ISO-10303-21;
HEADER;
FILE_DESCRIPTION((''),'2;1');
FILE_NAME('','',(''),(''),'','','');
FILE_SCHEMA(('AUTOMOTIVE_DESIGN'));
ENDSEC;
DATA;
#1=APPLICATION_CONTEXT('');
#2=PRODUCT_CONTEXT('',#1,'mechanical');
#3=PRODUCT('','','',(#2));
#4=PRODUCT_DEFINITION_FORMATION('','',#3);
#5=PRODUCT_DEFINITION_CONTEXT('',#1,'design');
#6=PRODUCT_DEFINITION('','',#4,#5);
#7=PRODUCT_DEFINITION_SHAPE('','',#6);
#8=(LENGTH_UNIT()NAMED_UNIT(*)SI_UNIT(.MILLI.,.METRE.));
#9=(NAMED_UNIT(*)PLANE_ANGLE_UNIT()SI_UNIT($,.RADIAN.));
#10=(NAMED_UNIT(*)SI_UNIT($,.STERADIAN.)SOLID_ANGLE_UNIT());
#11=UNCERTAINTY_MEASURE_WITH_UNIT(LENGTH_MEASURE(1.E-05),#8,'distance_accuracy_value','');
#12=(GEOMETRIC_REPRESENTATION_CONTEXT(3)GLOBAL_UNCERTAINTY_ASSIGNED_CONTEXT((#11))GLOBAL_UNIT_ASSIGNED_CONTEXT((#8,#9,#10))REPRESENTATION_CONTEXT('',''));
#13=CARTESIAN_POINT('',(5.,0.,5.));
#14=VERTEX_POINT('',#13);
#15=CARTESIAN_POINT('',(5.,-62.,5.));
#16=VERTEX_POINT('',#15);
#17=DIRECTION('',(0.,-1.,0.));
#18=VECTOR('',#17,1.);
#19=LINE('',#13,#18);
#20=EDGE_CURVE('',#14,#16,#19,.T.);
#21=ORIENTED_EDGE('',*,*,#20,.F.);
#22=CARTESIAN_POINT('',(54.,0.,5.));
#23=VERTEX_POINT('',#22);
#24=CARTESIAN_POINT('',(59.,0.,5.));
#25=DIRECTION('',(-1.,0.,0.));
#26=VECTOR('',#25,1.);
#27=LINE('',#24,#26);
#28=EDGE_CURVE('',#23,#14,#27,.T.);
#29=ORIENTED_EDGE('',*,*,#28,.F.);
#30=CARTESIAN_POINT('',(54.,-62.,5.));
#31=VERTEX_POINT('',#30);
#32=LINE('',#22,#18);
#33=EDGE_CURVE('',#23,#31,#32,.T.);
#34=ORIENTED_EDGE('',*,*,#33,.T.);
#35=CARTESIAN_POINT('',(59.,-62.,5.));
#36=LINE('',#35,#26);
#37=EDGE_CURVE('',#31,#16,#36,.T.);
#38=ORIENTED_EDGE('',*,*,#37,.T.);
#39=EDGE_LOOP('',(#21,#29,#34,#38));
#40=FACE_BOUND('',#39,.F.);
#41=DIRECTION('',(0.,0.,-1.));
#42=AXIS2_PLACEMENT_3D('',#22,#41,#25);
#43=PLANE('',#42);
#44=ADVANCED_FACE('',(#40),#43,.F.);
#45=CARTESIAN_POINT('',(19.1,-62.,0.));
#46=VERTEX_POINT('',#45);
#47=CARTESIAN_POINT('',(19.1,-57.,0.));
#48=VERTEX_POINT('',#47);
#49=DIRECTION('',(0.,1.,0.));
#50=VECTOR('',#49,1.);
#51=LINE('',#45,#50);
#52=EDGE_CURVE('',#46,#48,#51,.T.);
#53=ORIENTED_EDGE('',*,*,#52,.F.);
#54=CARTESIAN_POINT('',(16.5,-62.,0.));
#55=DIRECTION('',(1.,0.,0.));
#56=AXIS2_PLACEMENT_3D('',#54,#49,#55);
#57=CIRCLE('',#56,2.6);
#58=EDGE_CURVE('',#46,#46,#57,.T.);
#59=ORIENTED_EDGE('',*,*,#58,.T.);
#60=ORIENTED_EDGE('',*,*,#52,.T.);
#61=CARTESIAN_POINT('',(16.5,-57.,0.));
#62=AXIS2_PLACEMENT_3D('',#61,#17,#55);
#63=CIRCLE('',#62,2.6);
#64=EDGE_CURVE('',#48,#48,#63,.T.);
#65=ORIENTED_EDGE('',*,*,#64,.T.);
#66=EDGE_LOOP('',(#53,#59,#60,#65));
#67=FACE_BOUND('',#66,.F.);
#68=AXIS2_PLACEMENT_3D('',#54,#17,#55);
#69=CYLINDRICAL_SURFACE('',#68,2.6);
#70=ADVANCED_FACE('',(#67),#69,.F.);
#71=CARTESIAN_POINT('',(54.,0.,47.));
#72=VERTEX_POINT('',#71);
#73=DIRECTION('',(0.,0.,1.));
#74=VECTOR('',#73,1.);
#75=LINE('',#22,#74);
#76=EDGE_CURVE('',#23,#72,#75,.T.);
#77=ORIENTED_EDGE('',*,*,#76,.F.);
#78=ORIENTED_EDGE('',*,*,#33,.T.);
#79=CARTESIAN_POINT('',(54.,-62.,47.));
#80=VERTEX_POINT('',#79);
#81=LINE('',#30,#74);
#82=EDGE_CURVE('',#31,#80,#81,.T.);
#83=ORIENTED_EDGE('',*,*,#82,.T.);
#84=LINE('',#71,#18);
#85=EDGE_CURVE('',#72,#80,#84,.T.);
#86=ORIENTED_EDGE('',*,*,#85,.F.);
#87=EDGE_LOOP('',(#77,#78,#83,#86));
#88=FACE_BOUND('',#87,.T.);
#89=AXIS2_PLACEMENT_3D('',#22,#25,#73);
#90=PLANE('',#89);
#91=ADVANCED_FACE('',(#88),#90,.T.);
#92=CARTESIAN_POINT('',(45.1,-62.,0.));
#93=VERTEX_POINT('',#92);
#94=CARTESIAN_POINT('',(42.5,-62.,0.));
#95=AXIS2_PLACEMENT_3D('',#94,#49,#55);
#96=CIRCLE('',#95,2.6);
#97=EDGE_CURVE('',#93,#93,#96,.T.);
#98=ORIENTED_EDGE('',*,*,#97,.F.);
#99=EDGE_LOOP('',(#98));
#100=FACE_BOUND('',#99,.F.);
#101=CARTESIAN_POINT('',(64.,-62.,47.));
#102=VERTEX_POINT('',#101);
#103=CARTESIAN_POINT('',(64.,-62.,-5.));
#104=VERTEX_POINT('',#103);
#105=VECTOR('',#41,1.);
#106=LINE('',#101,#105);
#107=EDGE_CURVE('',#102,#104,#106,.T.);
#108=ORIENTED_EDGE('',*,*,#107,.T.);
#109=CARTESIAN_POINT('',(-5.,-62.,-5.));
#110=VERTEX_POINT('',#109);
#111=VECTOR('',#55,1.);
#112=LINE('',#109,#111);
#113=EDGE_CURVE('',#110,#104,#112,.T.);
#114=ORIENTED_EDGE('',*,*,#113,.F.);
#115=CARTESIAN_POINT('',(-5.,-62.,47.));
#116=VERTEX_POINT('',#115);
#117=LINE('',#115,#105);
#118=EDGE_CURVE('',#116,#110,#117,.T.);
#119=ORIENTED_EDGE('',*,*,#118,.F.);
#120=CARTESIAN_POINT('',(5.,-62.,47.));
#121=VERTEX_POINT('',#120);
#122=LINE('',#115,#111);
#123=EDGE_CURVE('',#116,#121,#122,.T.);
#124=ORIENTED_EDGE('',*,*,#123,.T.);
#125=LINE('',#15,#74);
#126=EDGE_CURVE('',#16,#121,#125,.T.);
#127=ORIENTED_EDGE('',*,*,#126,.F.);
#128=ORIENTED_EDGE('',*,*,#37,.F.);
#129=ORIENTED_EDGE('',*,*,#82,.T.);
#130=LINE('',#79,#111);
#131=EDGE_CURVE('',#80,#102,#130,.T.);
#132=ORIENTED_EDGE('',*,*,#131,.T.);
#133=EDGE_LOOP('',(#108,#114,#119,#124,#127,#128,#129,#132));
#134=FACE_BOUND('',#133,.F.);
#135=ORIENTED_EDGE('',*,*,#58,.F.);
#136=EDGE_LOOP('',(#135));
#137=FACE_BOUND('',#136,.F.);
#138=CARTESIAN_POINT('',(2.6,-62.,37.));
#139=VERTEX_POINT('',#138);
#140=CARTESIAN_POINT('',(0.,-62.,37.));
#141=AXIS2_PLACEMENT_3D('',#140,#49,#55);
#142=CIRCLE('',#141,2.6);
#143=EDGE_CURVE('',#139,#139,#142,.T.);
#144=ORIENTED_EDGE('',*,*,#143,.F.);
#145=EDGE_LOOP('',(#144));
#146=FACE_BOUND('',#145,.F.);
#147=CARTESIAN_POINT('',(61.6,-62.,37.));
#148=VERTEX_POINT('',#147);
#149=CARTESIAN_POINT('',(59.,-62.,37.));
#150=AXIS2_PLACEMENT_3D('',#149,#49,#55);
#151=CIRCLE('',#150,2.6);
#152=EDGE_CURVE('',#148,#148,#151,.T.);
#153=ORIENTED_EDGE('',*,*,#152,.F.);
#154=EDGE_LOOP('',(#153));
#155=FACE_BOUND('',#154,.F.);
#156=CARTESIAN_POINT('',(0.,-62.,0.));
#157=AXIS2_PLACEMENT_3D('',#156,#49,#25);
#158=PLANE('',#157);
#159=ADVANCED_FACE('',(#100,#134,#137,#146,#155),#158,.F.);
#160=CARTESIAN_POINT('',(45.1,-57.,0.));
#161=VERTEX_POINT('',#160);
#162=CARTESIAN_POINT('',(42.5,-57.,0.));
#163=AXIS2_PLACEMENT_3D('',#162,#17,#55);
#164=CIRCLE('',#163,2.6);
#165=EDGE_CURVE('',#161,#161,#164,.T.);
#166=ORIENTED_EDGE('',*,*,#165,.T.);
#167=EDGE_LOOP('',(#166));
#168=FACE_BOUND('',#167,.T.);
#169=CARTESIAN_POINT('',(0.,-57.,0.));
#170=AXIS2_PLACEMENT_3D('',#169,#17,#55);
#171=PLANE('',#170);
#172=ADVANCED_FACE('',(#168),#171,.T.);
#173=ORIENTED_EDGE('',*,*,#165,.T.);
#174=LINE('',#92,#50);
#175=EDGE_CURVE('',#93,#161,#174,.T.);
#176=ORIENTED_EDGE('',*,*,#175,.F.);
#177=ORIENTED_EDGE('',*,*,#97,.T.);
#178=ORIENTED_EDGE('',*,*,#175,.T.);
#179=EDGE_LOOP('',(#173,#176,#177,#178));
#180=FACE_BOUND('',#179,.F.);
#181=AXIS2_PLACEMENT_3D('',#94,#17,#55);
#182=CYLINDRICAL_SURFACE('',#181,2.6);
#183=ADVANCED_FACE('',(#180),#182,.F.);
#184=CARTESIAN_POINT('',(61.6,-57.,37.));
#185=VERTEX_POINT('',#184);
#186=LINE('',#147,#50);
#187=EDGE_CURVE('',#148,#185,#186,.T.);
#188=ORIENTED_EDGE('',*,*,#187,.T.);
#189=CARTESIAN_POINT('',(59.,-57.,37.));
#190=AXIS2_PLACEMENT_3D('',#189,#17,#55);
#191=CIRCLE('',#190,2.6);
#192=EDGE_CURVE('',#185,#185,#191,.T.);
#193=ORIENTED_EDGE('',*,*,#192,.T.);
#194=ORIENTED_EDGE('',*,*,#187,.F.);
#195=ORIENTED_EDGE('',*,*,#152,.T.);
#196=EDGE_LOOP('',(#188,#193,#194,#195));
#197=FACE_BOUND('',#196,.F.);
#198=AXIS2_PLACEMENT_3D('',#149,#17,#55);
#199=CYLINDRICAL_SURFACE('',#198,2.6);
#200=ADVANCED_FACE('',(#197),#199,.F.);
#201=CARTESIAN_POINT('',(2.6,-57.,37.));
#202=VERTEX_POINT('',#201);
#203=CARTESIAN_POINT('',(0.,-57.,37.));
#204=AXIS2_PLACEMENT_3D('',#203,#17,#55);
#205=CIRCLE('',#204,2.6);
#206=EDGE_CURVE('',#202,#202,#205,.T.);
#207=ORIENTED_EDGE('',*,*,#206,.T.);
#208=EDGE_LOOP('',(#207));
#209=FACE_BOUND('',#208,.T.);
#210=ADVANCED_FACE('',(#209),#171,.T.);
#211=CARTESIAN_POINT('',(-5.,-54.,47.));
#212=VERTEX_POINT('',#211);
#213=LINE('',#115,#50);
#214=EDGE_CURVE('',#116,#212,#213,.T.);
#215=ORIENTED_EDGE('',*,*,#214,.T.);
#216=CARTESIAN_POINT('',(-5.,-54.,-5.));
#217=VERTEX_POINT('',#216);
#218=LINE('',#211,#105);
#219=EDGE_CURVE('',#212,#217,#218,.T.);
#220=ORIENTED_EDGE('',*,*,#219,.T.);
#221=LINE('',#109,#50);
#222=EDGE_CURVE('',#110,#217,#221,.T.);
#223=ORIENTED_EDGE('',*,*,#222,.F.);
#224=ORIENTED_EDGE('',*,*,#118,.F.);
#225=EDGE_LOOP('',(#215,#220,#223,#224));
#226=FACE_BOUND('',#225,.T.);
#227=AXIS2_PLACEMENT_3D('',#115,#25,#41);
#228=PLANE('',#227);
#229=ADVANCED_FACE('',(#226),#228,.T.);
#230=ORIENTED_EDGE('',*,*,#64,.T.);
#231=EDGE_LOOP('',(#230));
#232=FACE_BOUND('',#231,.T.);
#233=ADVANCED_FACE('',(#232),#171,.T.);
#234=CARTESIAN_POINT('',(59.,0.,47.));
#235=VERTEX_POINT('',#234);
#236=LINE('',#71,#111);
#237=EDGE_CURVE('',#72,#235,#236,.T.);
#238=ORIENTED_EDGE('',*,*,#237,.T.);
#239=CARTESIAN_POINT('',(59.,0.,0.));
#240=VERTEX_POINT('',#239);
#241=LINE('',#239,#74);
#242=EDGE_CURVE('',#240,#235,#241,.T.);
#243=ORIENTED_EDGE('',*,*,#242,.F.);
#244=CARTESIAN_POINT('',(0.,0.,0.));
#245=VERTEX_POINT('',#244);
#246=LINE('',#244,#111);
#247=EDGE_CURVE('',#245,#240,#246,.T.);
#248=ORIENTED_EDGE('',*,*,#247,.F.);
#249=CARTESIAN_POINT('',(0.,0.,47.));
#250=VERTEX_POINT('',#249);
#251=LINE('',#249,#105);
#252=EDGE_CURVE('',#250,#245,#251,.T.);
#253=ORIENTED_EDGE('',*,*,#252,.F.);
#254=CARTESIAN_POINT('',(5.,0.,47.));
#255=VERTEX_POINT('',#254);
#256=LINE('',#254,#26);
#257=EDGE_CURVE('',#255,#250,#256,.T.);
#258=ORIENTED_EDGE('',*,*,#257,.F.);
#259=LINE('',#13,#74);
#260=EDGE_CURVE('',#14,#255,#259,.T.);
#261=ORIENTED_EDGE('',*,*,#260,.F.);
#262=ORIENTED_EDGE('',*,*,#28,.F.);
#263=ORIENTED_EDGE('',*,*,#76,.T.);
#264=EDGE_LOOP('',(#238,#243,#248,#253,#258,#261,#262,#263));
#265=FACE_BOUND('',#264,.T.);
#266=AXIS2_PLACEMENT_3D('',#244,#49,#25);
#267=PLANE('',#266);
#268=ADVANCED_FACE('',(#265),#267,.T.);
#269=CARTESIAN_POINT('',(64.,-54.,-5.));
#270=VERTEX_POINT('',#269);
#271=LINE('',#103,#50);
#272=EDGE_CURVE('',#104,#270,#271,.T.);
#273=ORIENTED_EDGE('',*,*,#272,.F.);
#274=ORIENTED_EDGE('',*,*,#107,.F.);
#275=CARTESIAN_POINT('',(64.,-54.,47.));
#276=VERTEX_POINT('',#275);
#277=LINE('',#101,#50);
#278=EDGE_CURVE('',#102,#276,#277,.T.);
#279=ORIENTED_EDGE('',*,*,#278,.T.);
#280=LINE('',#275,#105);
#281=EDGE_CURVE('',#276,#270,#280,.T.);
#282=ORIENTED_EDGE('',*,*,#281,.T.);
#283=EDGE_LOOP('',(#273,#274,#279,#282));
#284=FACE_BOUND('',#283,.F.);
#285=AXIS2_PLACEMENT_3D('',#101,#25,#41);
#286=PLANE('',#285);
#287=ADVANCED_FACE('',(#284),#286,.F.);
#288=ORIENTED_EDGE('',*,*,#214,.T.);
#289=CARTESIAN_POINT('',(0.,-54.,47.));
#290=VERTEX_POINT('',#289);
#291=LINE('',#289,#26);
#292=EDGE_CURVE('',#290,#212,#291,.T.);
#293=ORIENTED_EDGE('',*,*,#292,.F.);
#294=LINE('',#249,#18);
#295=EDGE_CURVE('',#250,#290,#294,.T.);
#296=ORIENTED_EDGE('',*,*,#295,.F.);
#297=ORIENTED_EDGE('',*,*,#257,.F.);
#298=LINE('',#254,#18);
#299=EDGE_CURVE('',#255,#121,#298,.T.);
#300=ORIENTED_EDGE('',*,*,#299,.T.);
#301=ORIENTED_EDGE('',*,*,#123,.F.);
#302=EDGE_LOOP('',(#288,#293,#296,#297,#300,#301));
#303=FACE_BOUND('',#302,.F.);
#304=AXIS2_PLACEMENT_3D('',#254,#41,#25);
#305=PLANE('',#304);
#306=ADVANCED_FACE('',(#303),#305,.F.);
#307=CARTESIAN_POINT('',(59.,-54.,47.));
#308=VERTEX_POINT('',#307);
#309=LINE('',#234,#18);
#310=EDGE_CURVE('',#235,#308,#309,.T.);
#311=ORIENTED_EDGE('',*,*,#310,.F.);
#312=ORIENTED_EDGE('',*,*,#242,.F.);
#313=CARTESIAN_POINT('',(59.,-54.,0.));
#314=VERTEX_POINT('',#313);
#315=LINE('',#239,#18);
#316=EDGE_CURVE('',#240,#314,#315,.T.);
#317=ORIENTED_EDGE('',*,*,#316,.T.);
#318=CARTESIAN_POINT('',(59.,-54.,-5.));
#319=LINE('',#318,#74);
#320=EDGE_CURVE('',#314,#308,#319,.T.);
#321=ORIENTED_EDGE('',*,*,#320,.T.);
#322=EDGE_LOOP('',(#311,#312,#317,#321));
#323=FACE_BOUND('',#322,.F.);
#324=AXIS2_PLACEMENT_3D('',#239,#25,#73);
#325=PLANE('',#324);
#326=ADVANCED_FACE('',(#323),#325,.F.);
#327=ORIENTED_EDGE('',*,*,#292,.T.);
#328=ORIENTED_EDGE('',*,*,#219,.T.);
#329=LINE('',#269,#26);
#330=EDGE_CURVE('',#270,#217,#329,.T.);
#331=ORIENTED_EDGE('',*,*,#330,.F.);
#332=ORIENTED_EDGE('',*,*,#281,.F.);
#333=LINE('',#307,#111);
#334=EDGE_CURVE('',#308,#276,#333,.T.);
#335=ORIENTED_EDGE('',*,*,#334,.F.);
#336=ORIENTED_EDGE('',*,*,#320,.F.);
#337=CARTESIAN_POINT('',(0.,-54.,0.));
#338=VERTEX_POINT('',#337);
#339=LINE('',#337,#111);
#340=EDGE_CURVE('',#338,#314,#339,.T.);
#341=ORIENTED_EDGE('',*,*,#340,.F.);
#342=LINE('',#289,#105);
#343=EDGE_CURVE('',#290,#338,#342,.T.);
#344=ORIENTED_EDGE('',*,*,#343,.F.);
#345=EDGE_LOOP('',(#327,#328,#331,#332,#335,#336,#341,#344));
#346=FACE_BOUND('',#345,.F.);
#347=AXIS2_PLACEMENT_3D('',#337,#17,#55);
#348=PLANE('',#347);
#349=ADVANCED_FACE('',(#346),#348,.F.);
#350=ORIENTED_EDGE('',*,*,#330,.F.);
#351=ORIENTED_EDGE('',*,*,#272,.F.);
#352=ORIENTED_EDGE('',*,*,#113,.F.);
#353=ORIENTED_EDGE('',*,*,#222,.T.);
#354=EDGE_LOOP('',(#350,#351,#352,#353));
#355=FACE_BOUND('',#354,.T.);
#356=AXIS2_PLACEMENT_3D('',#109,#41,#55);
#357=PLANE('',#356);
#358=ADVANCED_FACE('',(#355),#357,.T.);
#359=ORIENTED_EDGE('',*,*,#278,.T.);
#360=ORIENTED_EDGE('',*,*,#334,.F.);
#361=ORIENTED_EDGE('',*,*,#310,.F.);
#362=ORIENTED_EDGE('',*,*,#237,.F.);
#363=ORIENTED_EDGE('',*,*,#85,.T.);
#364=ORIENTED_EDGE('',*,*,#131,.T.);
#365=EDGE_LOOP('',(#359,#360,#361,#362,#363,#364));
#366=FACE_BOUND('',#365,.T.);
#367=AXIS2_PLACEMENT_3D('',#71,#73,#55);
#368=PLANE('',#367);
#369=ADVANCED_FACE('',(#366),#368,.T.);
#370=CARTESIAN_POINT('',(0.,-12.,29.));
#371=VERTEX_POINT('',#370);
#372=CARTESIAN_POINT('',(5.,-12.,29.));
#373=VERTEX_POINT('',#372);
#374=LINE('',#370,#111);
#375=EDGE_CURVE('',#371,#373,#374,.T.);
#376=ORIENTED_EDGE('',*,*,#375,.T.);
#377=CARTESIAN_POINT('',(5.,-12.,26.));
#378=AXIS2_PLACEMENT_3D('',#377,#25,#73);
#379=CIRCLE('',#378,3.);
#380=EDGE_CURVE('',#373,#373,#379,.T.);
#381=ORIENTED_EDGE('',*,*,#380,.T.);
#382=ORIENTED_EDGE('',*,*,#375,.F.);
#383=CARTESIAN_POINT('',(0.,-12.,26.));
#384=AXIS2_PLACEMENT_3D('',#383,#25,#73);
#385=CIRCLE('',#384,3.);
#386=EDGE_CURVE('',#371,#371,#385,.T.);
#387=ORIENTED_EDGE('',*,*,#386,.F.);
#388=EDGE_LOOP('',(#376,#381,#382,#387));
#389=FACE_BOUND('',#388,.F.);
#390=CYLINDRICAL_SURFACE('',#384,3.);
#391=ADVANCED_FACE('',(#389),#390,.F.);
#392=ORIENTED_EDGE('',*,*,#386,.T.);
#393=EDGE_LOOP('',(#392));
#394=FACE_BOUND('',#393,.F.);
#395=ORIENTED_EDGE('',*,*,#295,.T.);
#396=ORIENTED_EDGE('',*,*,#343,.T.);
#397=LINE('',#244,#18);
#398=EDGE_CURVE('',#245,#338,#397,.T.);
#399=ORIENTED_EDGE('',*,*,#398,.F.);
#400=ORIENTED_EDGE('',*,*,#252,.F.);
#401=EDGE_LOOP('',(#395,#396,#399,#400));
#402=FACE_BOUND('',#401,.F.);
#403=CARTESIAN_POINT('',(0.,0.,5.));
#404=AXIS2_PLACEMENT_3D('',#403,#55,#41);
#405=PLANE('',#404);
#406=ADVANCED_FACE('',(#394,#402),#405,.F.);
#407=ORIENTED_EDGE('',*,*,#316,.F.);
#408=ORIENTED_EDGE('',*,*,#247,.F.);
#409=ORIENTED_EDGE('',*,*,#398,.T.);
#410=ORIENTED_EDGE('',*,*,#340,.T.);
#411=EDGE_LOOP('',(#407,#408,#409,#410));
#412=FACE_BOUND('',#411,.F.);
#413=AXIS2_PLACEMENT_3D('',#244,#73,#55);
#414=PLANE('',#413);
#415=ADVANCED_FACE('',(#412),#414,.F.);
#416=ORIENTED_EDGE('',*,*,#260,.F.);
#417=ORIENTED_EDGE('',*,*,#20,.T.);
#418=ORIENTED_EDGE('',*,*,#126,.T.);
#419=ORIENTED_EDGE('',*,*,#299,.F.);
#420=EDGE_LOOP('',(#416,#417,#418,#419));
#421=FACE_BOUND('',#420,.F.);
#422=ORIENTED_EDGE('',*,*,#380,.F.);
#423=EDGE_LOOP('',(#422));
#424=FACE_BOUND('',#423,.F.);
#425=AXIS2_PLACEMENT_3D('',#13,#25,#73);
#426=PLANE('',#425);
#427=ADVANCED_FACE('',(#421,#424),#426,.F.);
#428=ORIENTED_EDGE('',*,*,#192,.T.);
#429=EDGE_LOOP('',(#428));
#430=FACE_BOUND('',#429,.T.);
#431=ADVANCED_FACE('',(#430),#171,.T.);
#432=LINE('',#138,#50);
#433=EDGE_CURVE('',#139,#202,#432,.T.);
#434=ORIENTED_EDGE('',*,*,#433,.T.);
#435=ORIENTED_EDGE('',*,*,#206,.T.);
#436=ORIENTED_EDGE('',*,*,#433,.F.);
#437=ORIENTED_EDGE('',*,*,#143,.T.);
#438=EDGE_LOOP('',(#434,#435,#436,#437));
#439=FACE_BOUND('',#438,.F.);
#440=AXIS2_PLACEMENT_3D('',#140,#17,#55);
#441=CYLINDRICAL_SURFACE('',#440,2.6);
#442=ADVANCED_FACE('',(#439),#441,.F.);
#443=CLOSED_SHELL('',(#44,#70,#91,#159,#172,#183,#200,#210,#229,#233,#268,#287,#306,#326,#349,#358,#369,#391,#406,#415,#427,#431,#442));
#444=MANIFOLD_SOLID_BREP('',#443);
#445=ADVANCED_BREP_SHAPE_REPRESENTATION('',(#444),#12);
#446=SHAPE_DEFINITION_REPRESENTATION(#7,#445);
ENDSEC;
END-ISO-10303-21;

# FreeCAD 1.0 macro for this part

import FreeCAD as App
import Part
import Sketcher

V = App.Vector
Q = App.Units.Quantity


def add_polygon(sketch, points):
    """Adds a closed chain of lines whose ends are joined by coincident constraints."""
    first, n = sketch.GeometryCount, len(points)
    for a, b in zip(points, points[1:] + points[:1]):
        sketch.addGeometry(Part.LineSegment(App.Vector(*a, 0), App.Vector(*b, 0)), False)
    for i in range(n):
        sketch.addConstraint(Sketcher.Constraint("Coincident", first + i, 2, first + (i + 1) % n, 1))

doc = App.newDocument("Part")
body = doc.addObject("PartDesign::Body", "Body")

sketch1 = body.newObject("Sketcher::SketchObject", "Sketch")
sketch1.AttachmentSupport = (doc.getObject("XZ_Plane"), [""])
sketch1.MapMode = "FlatFace"
add_polygon(sketch1, [(59, 0), (0, 0), (0, 47), (5, 47), (5, 5), (54, 5), (54, 47), (59, 47)])
sketch1.addConstraint(Sketcher.Constraint("Horizontal", 0))
sketch1.addConstraint(Sketcher.Constraint("Vertical", 1))
sketch1.addConstraint(Sketcher.Constraint("Horizontal", 2))
sketch1.addConstraint(Sketcher.Constraint("Vertical", 3))
sketch1.addConstraint(Sketcher.Constraint("Horizontal", 4))
sketch1.addConstraint(Sketcher.Constraint("Vertical", 5))
sketch1.addConstraint(Sketcher.Constraint("Horizontal", 6))
sketch1.addConstraint(Sketcher.Constraint("Vertical", 7))
sketch1.addConstraint(Sketcher.Constraint("Coincident", 0, 2, -1, 1))
sketch1.addConstraint(Sketcher.Constraint("Horizontal", 2, 2, 5, 2))
sketch1.addConstraint(Sketcher.Constraint("Equal", 2, 6))
sketch1.addConstraint(Sketcher.Constraint("DistanceX", 0, 2, 0, 1, Q("59 mm")))
sketch1.addConstraint(Sketcher.Constraint("DistanceX", 2, 1, 2, 2, Q("5 mm")))
sketch1.addConstraint(Sketcher.Constraint("DistanceY", 3, 2, 3, 1, Q("42 mm")))
sketch1.addConstraint(Sketcher.Constraint("DistanceY", -1, 1, 3, 2, Q("5 mm")))
pad1 = body.newObject("PartDesign::Pad", "Pad")
pad1.Profile = sketch1
pad1.Length = 62

sketch2 = body.newObject("Sketcher::SketchObject", "Sketch001")
sketch2.AttachmentSupport = (doc.getObject("XZ_Plane"), [""])
sketch2.MapMode = "FlatFace"
sketch2.AttachmentOffset = App.Placement(V(0, 0, 62), App.Rotation())
add_polygon(sketch2, [(0, 0), (0, 47), (-5, 47), (-5, -5), (64, -5), (64, 47), (59, 47), (59, 0)])
sketch2.addConstraint(Sketcher.Constraint("Vertical", 0))
sketch2.addConstraint(Sketcher.Constraint("Horizontal", 1))
sketch2.addConstraint(Sketcher.Constraint("Vertical", 2))
sketch2.addConstraint(Sketcher.Constraint("Horizontal", 3))
sketch2.addConstraint(Sketcher.Constraint("Vertical", 4))
sketch2.addConstraint(Sketcher.Constraint("Horizontal", 5))
sketch2.addConstraint(Sketcher.Constraint("Vertical", 6))
sketch2.addConstraint(Sketcher.Constraint("Horizontal", 7))
sketch2.addConstraint(Sketcher.Constraint("Coincident", 7, 2, -1, 1))
sketch2.addConstraint(Sketcher.Constraint("Horizontal", 1, 2, 4, 2))
sketch2.addConstraint(Sketcher.Constraint("Equal", 1, 5))
sketch2.addConstraint(Sketcher.Constraint("DistanceX", 1, 2, 1, 1, Q("5 mm")))
sketch2.addConstraint(Sketcher.Constraint("DistanceY", 2, 2, 2, 1, Q("52 mm")))
sketch2.addConstraint(Sketcher.Constraint("DistanceY", 2, 2, -1, 1, Q("5 mm")))
sketch2.addConstraint(Sketcher.Constraint("DistanceX", 3, 1, 3, 2, Q("69 mm")))
pad2 = body.newObject("PartDesign::Pad", "Pad001")
pad2.Profile = sketch2
pad2.Length = 8
pad2.Reversed = True

sketch3 = body.newObject("Sketcher::SketchObject", "Sketch002")
sketch3.AttachmentSupport = (doc.getObject("XZ_Plane"), [""])
sketch3.MapMode = "FlatFace"
sketch3.AttachmentOffset = App.Placement(V(0, 0, 62), App.Rotation())
sketch3.addGeometry(Part.Circle(V(0, 37, 0), V(0, 0, 1), 2.6), False)
sketch3.addGeometry(Part.Circle(V(59, 37, 0), V(0, 0, 1), 2.6), False)
sketch3.addGeometry(Part.Circle(V(42.5, 0, 0), V(0, 0, 1), 2.6), False)
sketch3.addGeometry(Part.Circle(V(16.5, 0, 0), V(0, 0, 1), 2.6), False)
sketch3.addConstraint(Sketcher.Constraint("Equal", 0, 1))
sketch3.addConstraint(Sketcher.Constraint("Equal", 1, 2))
sketch3.addConstraint(Sketcher.Constraint("Equal", 2, 3))
sketch3.addConstraint(Sketcher.Constraint("PointOnObject", 0, 3, -2))
sketch3.addConstraint(Sketcher.Constraint("PointOnObject", 2, 3, -1))
sketch3.addConstraint(Sketcher.Constraint("PointOnObject", 3, 3, -1))
sketch3.addConstraint(Sketcher.Constraint("Horizontal", 0, 3, 1, 3))
sketch3.addConstraint(Sketcher.Constraint("Diameter", 0, Q("5.2 mm")))
sketch3.addConstraint(Sketcher.Constraint("DistanceY", -1, 1, 0, 3, Q("37 mm")))
sketch3.addConstraint(Sketcher.Constraint("DistanceX", -1, 1, 1, 3, Q("59 mm")))
sketch3.addConstraint(Sketcher.Constraint("DistanceX", 3, 3, 2, 3, Q("26 mm")))
sketch3.addConstraint(Sketcher.Constraint("DistanceX", -1, 1, 2, 3, Q("42.5 mm")))
pocket1 = body.newObject("PartDesign::Pocket", "Pocket")
pocket1.Profile = sketch3
pocket1.Length = 5

sketch4 = body.newObject("Sketcher::SketchObject", "Sketch003")
sketch4.AttachmentSupport = (doc.getObject("YZ_Plane"), [""])
sketch4.MapMode = "FlatFace"
sketch4.addGeometry(Part.Circle(V(-12, 26, 0), V(0, 0, 1), 3), False)
sketch4.addConstraint(Sketcher.Constraint("Diameter", 0, Q("6 mm")))
sketch4.addConstraint(Sketcher.Constraint("DistanceX", 0, 3, -1, 1, Q("12 mm")))
sketch4.addConstraint(Sketcher.Constraint("DistanceY", -1, 1, 0, 3, Q("26 mm")))
pocket2 = body.newObject("PartDesign::Pocket", "Pocket001")
pocket2.Profile = sketch4
pocket2.Length = 5
pocket2.Reversed = True

doc.recompute()
